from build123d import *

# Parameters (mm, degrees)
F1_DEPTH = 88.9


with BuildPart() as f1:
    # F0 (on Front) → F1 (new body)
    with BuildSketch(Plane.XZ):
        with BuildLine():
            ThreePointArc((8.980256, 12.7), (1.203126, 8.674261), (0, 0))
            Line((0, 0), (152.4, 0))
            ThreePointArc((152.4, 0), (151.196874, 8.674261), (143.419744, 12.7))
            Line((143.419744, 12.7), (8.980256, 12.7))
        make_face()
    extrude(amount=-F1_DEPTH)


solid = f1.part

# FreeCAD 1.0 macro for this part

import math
import FreeCAD as App
import Part
import Sketcher

V = App.Vector
Q = App.Units.Quantity

doc = App.newDocument("Part")
body = doc.addObject("PartDesign::Body", "Body")

sketch1 = doc.addObject("Sketcher::SketchObject", "Sketch")
body.addObject(sketch1)
sketch1.AttachmentSupport = (doc.XZ_Plane, [""])
sketch1.MapMode = "FlatFace"
sketch1.addGeometry([
    Part.ArcOfCircle(Part.Circle(V(9, 3, 0), V(0, 0, 1), 10), math.radians(90), math.radians(199)),
    Part.LineSegment(V(0, 0, 0), V(152, 0, 0)),
    Part.ArcOfCircle(Part.Circle(V(143, 3, 0), V(0, 0, 1), 10), math.radians(-19), math.radians(90)),
    Part.LineSegment(V(143, 13, 0), V(9, 13, 0)),
], False)
sketch1.addConstraint([
    Sketcher.Constraint("Coincident", 0, 2, 1, 1),
    Sketcher.Constraint("Coincident", 1, 2, 2, 1),
    Sketcher.Constraint("Tangent", 2, 2, 3, 1),
    Sketcher.Constraint("Tangent", 3, 2, 0, 1),
    Sketcher.Constraint("Horizontal", 1),
    Sketcher.Constraint("Horizontal", 3),
    Sketcher.Constraint("Coincident", 0, 2, -1, 1),
    Sketcher.Constraint("Equal", 0, 2),
    Sketcher.Constraint("DistanceX", 1, 1, 1, 2, Q("6 in")),
    Sketcher.Constraint("Radius", 0, Q("0.375 in")),
    Sketcher.Constraint("DistanceY", -1, 1, 2, 2, Q("0.5 in")),
])
pad1 = doc.addObject("PartDesign::Pad", "Pad")
body.addObject(pad1)
pad1.Profile = sketch1
pad1.Length = Q("3.5 in")
pad1.Reversed = True

doc.recompute()
